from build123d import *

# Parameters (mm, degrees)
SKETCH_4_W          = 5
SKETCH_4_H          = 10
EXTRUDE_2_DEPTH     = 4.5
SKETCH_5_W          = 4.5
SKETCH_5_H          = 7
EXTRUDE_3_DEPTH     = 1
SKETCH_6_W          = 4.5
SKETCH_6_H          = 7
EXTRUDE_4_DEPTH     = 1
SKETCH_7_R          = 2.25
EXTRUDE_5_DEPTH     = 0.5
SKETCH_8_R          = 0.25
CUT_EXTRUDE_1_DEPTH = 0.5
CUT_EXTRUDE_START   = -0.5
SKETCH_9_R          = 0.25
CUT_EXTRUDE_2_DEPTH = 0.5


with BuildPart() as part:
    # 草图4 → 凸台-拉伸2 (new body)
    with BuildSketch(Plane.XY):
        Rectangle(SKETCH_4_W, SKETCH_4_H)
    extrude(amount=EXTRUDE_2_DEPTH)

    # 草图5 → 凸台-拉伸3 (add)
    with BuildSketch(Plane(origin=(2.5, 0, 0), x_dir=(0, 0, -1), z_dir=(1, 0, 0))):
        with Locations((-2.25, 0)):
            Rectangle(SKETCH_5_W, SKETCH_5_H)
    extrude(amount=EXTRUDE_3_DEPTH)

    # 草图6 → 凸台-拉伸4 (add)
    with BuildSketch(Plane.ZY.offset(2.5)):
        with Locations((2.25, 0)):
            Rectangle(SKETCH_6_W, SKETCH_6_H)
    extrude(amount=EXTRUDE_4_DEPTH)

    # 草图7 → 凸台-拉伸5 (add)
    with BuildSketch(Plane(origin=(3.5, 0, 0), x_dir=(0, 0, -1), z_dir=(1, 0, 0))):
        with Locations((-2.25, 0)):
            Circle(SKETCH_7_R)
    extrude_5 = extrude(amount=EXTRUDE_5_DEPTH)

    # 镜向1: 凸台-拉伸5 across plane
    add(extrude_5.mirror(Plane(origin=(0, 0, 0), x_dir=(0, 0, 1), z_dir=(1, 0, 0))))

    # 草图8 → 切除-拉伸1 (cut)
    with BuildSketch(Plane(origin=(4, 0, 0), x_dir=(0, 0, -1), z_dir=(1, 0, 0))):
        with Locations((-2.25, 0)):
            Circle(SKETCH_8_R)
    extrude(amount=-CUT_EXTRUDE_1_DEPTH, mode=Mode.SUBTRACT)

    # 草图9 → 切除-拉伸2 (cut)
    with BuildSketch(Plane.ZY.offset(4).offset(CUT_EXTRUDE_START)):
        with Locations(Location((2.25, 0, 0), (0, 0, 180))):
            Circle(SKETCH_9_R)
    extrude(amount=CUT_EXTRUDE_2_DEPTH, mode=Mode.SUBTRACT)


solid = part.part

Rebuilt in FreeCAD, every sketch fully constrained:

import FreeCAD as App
import Part
import Sketcher
Q = App.Units.Quantity


def add_polygon(sketch, points):
    """Adds a closed chain of lines whose ends are joined by coincident constraints."""
    first, n = sketch.GeometryCount, len(points)
    for a, b in zip(points, points[1:] + points[:1]):
        sketch.addGeometry(Part.LineSegment(App.Vector(*a, 0), App.Vector(*b, 0)), False)
    for i in range(n):
        sketch.addConstraint(Sketcher.Constraint("Coincident", first + i, 2, first + (i + 1) % n, 1))

doc = App.newDocument("Part")
body = doc.addObject("PartDesign::Body", "Body")

# Sketch on XY plane
sketch1 = body.newObject("Sketcher::SketchObject", "Sketch")
sketch1.AttachmentSupport = (doc.getObject("XY_Plane"), [""])
sketch1.MapMode = "FlatFace"
add_polygon(sketch1, [(-2, 5), (-2, -5), (2, -5), (2, 5)])  # lines 0-3
sketch1.addConstraint(Sketcher.Constraint("Vertical", 0))
sketch1.addConstraint(Sketcher.Constraint("Horizontal", 1))
sketch1.addConstraint(Sketcher.Constraint("Vertical", 2))
sketch1.addConstraint(Sketcher.Constraint("Horizontal", 3))
sketch1.addConstraint(Sketcher.Constraint("Symmetric", 0, 2, 2, 2, -1, 1))
sketch1.addConstraint(Sketcher.Constraint("DistanceX", 1, 1, 1, 2, Q("5 mm")))
sketch1.addConstraint(Sketcher.Constraint("DistanceY", 0, 2, 0, 1, Q("10 mm")))
pad1 = body.newObject("PartDesign::Pad", "Pad")
pad1.Profile = sketch1
pad1.Length = 4.5

# Sketch on YZ plane
sketch2 = body.newObject("Sketcher::SketchObject", "Sketch001")
sketch2.AttachmentSupport = (doc.getObject("YZ_Plane"), [""])
sketch2.MapMode = "FlatFace"
sketch2.AttachmentOffset = App.Placement(App.Vector(0, 0, 2.5), App.Rotation())
add_polygon(sketch2, [(3.5, 4.5), (-3.5, 4.5), (-3.5, 0), (3.5, 0)])  # lines 0-3
sketch2.addConstraint(Sketcher.Constraint("Horizontal", 0))
sketch2.addConstraint(Sketcher.Constraint("Vertical", 1))
sketch2.addConstraint(Sketcher.Constraint("Horizontal", 2))
sketch2.addConstraint(Sketcher.Constraint("Vertical", 3))
sketch2.addConstraint(Sketcher.Constraint("Symmetric", 1, 2, 2, 2, -1, 1))
sketch2.addConstraint(Sketcher.Constraint("DistanceX", 0, 2, 0, 1, Q("7 mm")))
sketch2.addConstraint(Sketcher.Constraint("DistanceY", 1, 2, 1, 1, Q("4.5 mm")))
pad2 = body.newObject("PartDesign::Pad", "Pad001")
pad2.Profile = sketch2
pad2.Length = 1

# Sketch on YZ plane
sketch3 = body.newObject("Sketcher::SketchObject", "Sketch002")
sketch3.AttachmentSupport = (doc.getObject("YZ_Plane"), [""])
sketch3.MapMode = "FlatFace"
sketch3.AttachmentOffset = App.Placement(App.Vector(0, 0, -2.5), App.Rotation())
add_polygon(sketch3, [(3.5, 0), (-3.5, 0), (-3.5, 4.5), (3.5, 4.5)])  # lines 0-3
sketch3.addConstraint(Sketcher.Constraint("Horizontal", 0))
sketch3.addConstraint(Sketcher.Constraint("Vertical", 1))
sketch3.addConstraint(Sketcher.Constraint("Horizontal", 2))
sketch3.addConstraint(Sketcher.Constraint("Vertical", 3))
sketch3.addConstraint(Sketcher.Constraint("Symmetric", 0, 2, 3, 2, -1, 1))
sketch3.addConstraint(Sketcher.Constraint("DistanceX", 0, 2, 0, 1, Q("7 mm")))
sketch3.addConstraint(Sketcher.Constraint("DistanceY", 1, 1, 1, 2, Q("4.5 mm")))
pad3 = body.newObject("PartDesign::Pad", "Pad002")
pad3.Profile = sketch3
pad3.Length = 1
pad3.Reversed = True

# Sketch on YZ plane
sketch4 = body.newObject("Sketcher::SketchObject", "Sketch003")
sketch4.AttachmentSupport = (doc.getObject("YZ_Plane"), [""])
sketch4.MapMode = "FlatFace"
sketch4.AttachmentOffset = App.Placement(App.Vector(0, 0, 3.5), App.Rotation())
sketch4.addGeometry(Part.Circle(App.Vector(0, 2.2, 0), App.Vector(0, 0, 1), 2.2), False)
sketch4.addConstraint(Sketcher.Constraint("PointOnObject", 0, 3, -2))
sketch4.addConstraint(Sketcher.Constraint("Diameter", 0, Q("4.5 mm")))
sketch4.addConstraint(Sketcher.Constraint("DistanceY", -1, 1, 0, 3, Q("2.25 mm")))
pad4 = body.newObject("PartDesign::Pad", "Pad003")
pad4.Profile = sketch4
pad4.Length = 0.5
doc.recompute()

mirrored = body.newObject("PartDesign::Mirrored", "Mirrored")
mirrored.Originals = [pad4]
mirrored.MirrorPlane = (doc.getObject("YZ_Plane"), [""])
body.Tip = mirrored

# Sketch on YZ plane
sketch5 = body.newObject("Sketcher::SketchObject", "Sketch004")
sketch5.AttachmentSupport = (doc.getObject("YZ_Plane"), [""])
sketch5.MapMode = "FlatFace"
sketch5.AttachmentOffset = App.Placement(App.Vector(0, 0, 4), App.Rotation())
sketch5.addGeometry(Part.Circle(App.Vector(0, 2.25, 0), App.Vector(0, 0, 1), 0.25), False)
sketch5.addConstraint(Sketcher.Constraint("PointOnObject", 0, 3, -2))
sketch5.addConstraint(Sketcher.Constraint("Diameter", 0, Q("0.5 mm")))
sketch5.addConstraint(Sketcher.Constraint("DistanceY", -1, 1, 0, 3, Q("2.25 mm")))
pocket1 = body.newObject("PartDesign::Pocket", "Pocket")
pocket1.Profile = sketch5
pocket1.Length = 0.5

# Sketch on YZ plane
sketch6 = body.newObject("Sketcher::SketchObject", "Sketch005")
sketch6.AttachmentSupport = (doc.getObject("YZ_Plane"), [""])
sketch6.MapMode = "FlatFace"
sketch6.AttachmentOffset = App.Placement(App.Vector(0, 0, -3.5), App.Rotation())
sketch6.addGeometry(Part.Circle(App.Vector(0, 2.25, 0), App.Vector(0, 0, 1), 0.25), False)
sketch6.addConstraint(Sketcher.Constraint("PointOnObject", 0, 3, -2))
sketch6.addConstraint(Sketcher.Constraint("Diameter", 0, Q("0.5 mm")))
sketch6.addConstraint(Sketcher.Constraint("DistanceY", -1, 1, 0, 3, Q("2.25 mm")))
pocket2 = body.newObject("PartDesign::Pocket", "Pocket001")
pocket2.Profile = sketch6
pocket2.Length = 0.5

doc.recompute()
